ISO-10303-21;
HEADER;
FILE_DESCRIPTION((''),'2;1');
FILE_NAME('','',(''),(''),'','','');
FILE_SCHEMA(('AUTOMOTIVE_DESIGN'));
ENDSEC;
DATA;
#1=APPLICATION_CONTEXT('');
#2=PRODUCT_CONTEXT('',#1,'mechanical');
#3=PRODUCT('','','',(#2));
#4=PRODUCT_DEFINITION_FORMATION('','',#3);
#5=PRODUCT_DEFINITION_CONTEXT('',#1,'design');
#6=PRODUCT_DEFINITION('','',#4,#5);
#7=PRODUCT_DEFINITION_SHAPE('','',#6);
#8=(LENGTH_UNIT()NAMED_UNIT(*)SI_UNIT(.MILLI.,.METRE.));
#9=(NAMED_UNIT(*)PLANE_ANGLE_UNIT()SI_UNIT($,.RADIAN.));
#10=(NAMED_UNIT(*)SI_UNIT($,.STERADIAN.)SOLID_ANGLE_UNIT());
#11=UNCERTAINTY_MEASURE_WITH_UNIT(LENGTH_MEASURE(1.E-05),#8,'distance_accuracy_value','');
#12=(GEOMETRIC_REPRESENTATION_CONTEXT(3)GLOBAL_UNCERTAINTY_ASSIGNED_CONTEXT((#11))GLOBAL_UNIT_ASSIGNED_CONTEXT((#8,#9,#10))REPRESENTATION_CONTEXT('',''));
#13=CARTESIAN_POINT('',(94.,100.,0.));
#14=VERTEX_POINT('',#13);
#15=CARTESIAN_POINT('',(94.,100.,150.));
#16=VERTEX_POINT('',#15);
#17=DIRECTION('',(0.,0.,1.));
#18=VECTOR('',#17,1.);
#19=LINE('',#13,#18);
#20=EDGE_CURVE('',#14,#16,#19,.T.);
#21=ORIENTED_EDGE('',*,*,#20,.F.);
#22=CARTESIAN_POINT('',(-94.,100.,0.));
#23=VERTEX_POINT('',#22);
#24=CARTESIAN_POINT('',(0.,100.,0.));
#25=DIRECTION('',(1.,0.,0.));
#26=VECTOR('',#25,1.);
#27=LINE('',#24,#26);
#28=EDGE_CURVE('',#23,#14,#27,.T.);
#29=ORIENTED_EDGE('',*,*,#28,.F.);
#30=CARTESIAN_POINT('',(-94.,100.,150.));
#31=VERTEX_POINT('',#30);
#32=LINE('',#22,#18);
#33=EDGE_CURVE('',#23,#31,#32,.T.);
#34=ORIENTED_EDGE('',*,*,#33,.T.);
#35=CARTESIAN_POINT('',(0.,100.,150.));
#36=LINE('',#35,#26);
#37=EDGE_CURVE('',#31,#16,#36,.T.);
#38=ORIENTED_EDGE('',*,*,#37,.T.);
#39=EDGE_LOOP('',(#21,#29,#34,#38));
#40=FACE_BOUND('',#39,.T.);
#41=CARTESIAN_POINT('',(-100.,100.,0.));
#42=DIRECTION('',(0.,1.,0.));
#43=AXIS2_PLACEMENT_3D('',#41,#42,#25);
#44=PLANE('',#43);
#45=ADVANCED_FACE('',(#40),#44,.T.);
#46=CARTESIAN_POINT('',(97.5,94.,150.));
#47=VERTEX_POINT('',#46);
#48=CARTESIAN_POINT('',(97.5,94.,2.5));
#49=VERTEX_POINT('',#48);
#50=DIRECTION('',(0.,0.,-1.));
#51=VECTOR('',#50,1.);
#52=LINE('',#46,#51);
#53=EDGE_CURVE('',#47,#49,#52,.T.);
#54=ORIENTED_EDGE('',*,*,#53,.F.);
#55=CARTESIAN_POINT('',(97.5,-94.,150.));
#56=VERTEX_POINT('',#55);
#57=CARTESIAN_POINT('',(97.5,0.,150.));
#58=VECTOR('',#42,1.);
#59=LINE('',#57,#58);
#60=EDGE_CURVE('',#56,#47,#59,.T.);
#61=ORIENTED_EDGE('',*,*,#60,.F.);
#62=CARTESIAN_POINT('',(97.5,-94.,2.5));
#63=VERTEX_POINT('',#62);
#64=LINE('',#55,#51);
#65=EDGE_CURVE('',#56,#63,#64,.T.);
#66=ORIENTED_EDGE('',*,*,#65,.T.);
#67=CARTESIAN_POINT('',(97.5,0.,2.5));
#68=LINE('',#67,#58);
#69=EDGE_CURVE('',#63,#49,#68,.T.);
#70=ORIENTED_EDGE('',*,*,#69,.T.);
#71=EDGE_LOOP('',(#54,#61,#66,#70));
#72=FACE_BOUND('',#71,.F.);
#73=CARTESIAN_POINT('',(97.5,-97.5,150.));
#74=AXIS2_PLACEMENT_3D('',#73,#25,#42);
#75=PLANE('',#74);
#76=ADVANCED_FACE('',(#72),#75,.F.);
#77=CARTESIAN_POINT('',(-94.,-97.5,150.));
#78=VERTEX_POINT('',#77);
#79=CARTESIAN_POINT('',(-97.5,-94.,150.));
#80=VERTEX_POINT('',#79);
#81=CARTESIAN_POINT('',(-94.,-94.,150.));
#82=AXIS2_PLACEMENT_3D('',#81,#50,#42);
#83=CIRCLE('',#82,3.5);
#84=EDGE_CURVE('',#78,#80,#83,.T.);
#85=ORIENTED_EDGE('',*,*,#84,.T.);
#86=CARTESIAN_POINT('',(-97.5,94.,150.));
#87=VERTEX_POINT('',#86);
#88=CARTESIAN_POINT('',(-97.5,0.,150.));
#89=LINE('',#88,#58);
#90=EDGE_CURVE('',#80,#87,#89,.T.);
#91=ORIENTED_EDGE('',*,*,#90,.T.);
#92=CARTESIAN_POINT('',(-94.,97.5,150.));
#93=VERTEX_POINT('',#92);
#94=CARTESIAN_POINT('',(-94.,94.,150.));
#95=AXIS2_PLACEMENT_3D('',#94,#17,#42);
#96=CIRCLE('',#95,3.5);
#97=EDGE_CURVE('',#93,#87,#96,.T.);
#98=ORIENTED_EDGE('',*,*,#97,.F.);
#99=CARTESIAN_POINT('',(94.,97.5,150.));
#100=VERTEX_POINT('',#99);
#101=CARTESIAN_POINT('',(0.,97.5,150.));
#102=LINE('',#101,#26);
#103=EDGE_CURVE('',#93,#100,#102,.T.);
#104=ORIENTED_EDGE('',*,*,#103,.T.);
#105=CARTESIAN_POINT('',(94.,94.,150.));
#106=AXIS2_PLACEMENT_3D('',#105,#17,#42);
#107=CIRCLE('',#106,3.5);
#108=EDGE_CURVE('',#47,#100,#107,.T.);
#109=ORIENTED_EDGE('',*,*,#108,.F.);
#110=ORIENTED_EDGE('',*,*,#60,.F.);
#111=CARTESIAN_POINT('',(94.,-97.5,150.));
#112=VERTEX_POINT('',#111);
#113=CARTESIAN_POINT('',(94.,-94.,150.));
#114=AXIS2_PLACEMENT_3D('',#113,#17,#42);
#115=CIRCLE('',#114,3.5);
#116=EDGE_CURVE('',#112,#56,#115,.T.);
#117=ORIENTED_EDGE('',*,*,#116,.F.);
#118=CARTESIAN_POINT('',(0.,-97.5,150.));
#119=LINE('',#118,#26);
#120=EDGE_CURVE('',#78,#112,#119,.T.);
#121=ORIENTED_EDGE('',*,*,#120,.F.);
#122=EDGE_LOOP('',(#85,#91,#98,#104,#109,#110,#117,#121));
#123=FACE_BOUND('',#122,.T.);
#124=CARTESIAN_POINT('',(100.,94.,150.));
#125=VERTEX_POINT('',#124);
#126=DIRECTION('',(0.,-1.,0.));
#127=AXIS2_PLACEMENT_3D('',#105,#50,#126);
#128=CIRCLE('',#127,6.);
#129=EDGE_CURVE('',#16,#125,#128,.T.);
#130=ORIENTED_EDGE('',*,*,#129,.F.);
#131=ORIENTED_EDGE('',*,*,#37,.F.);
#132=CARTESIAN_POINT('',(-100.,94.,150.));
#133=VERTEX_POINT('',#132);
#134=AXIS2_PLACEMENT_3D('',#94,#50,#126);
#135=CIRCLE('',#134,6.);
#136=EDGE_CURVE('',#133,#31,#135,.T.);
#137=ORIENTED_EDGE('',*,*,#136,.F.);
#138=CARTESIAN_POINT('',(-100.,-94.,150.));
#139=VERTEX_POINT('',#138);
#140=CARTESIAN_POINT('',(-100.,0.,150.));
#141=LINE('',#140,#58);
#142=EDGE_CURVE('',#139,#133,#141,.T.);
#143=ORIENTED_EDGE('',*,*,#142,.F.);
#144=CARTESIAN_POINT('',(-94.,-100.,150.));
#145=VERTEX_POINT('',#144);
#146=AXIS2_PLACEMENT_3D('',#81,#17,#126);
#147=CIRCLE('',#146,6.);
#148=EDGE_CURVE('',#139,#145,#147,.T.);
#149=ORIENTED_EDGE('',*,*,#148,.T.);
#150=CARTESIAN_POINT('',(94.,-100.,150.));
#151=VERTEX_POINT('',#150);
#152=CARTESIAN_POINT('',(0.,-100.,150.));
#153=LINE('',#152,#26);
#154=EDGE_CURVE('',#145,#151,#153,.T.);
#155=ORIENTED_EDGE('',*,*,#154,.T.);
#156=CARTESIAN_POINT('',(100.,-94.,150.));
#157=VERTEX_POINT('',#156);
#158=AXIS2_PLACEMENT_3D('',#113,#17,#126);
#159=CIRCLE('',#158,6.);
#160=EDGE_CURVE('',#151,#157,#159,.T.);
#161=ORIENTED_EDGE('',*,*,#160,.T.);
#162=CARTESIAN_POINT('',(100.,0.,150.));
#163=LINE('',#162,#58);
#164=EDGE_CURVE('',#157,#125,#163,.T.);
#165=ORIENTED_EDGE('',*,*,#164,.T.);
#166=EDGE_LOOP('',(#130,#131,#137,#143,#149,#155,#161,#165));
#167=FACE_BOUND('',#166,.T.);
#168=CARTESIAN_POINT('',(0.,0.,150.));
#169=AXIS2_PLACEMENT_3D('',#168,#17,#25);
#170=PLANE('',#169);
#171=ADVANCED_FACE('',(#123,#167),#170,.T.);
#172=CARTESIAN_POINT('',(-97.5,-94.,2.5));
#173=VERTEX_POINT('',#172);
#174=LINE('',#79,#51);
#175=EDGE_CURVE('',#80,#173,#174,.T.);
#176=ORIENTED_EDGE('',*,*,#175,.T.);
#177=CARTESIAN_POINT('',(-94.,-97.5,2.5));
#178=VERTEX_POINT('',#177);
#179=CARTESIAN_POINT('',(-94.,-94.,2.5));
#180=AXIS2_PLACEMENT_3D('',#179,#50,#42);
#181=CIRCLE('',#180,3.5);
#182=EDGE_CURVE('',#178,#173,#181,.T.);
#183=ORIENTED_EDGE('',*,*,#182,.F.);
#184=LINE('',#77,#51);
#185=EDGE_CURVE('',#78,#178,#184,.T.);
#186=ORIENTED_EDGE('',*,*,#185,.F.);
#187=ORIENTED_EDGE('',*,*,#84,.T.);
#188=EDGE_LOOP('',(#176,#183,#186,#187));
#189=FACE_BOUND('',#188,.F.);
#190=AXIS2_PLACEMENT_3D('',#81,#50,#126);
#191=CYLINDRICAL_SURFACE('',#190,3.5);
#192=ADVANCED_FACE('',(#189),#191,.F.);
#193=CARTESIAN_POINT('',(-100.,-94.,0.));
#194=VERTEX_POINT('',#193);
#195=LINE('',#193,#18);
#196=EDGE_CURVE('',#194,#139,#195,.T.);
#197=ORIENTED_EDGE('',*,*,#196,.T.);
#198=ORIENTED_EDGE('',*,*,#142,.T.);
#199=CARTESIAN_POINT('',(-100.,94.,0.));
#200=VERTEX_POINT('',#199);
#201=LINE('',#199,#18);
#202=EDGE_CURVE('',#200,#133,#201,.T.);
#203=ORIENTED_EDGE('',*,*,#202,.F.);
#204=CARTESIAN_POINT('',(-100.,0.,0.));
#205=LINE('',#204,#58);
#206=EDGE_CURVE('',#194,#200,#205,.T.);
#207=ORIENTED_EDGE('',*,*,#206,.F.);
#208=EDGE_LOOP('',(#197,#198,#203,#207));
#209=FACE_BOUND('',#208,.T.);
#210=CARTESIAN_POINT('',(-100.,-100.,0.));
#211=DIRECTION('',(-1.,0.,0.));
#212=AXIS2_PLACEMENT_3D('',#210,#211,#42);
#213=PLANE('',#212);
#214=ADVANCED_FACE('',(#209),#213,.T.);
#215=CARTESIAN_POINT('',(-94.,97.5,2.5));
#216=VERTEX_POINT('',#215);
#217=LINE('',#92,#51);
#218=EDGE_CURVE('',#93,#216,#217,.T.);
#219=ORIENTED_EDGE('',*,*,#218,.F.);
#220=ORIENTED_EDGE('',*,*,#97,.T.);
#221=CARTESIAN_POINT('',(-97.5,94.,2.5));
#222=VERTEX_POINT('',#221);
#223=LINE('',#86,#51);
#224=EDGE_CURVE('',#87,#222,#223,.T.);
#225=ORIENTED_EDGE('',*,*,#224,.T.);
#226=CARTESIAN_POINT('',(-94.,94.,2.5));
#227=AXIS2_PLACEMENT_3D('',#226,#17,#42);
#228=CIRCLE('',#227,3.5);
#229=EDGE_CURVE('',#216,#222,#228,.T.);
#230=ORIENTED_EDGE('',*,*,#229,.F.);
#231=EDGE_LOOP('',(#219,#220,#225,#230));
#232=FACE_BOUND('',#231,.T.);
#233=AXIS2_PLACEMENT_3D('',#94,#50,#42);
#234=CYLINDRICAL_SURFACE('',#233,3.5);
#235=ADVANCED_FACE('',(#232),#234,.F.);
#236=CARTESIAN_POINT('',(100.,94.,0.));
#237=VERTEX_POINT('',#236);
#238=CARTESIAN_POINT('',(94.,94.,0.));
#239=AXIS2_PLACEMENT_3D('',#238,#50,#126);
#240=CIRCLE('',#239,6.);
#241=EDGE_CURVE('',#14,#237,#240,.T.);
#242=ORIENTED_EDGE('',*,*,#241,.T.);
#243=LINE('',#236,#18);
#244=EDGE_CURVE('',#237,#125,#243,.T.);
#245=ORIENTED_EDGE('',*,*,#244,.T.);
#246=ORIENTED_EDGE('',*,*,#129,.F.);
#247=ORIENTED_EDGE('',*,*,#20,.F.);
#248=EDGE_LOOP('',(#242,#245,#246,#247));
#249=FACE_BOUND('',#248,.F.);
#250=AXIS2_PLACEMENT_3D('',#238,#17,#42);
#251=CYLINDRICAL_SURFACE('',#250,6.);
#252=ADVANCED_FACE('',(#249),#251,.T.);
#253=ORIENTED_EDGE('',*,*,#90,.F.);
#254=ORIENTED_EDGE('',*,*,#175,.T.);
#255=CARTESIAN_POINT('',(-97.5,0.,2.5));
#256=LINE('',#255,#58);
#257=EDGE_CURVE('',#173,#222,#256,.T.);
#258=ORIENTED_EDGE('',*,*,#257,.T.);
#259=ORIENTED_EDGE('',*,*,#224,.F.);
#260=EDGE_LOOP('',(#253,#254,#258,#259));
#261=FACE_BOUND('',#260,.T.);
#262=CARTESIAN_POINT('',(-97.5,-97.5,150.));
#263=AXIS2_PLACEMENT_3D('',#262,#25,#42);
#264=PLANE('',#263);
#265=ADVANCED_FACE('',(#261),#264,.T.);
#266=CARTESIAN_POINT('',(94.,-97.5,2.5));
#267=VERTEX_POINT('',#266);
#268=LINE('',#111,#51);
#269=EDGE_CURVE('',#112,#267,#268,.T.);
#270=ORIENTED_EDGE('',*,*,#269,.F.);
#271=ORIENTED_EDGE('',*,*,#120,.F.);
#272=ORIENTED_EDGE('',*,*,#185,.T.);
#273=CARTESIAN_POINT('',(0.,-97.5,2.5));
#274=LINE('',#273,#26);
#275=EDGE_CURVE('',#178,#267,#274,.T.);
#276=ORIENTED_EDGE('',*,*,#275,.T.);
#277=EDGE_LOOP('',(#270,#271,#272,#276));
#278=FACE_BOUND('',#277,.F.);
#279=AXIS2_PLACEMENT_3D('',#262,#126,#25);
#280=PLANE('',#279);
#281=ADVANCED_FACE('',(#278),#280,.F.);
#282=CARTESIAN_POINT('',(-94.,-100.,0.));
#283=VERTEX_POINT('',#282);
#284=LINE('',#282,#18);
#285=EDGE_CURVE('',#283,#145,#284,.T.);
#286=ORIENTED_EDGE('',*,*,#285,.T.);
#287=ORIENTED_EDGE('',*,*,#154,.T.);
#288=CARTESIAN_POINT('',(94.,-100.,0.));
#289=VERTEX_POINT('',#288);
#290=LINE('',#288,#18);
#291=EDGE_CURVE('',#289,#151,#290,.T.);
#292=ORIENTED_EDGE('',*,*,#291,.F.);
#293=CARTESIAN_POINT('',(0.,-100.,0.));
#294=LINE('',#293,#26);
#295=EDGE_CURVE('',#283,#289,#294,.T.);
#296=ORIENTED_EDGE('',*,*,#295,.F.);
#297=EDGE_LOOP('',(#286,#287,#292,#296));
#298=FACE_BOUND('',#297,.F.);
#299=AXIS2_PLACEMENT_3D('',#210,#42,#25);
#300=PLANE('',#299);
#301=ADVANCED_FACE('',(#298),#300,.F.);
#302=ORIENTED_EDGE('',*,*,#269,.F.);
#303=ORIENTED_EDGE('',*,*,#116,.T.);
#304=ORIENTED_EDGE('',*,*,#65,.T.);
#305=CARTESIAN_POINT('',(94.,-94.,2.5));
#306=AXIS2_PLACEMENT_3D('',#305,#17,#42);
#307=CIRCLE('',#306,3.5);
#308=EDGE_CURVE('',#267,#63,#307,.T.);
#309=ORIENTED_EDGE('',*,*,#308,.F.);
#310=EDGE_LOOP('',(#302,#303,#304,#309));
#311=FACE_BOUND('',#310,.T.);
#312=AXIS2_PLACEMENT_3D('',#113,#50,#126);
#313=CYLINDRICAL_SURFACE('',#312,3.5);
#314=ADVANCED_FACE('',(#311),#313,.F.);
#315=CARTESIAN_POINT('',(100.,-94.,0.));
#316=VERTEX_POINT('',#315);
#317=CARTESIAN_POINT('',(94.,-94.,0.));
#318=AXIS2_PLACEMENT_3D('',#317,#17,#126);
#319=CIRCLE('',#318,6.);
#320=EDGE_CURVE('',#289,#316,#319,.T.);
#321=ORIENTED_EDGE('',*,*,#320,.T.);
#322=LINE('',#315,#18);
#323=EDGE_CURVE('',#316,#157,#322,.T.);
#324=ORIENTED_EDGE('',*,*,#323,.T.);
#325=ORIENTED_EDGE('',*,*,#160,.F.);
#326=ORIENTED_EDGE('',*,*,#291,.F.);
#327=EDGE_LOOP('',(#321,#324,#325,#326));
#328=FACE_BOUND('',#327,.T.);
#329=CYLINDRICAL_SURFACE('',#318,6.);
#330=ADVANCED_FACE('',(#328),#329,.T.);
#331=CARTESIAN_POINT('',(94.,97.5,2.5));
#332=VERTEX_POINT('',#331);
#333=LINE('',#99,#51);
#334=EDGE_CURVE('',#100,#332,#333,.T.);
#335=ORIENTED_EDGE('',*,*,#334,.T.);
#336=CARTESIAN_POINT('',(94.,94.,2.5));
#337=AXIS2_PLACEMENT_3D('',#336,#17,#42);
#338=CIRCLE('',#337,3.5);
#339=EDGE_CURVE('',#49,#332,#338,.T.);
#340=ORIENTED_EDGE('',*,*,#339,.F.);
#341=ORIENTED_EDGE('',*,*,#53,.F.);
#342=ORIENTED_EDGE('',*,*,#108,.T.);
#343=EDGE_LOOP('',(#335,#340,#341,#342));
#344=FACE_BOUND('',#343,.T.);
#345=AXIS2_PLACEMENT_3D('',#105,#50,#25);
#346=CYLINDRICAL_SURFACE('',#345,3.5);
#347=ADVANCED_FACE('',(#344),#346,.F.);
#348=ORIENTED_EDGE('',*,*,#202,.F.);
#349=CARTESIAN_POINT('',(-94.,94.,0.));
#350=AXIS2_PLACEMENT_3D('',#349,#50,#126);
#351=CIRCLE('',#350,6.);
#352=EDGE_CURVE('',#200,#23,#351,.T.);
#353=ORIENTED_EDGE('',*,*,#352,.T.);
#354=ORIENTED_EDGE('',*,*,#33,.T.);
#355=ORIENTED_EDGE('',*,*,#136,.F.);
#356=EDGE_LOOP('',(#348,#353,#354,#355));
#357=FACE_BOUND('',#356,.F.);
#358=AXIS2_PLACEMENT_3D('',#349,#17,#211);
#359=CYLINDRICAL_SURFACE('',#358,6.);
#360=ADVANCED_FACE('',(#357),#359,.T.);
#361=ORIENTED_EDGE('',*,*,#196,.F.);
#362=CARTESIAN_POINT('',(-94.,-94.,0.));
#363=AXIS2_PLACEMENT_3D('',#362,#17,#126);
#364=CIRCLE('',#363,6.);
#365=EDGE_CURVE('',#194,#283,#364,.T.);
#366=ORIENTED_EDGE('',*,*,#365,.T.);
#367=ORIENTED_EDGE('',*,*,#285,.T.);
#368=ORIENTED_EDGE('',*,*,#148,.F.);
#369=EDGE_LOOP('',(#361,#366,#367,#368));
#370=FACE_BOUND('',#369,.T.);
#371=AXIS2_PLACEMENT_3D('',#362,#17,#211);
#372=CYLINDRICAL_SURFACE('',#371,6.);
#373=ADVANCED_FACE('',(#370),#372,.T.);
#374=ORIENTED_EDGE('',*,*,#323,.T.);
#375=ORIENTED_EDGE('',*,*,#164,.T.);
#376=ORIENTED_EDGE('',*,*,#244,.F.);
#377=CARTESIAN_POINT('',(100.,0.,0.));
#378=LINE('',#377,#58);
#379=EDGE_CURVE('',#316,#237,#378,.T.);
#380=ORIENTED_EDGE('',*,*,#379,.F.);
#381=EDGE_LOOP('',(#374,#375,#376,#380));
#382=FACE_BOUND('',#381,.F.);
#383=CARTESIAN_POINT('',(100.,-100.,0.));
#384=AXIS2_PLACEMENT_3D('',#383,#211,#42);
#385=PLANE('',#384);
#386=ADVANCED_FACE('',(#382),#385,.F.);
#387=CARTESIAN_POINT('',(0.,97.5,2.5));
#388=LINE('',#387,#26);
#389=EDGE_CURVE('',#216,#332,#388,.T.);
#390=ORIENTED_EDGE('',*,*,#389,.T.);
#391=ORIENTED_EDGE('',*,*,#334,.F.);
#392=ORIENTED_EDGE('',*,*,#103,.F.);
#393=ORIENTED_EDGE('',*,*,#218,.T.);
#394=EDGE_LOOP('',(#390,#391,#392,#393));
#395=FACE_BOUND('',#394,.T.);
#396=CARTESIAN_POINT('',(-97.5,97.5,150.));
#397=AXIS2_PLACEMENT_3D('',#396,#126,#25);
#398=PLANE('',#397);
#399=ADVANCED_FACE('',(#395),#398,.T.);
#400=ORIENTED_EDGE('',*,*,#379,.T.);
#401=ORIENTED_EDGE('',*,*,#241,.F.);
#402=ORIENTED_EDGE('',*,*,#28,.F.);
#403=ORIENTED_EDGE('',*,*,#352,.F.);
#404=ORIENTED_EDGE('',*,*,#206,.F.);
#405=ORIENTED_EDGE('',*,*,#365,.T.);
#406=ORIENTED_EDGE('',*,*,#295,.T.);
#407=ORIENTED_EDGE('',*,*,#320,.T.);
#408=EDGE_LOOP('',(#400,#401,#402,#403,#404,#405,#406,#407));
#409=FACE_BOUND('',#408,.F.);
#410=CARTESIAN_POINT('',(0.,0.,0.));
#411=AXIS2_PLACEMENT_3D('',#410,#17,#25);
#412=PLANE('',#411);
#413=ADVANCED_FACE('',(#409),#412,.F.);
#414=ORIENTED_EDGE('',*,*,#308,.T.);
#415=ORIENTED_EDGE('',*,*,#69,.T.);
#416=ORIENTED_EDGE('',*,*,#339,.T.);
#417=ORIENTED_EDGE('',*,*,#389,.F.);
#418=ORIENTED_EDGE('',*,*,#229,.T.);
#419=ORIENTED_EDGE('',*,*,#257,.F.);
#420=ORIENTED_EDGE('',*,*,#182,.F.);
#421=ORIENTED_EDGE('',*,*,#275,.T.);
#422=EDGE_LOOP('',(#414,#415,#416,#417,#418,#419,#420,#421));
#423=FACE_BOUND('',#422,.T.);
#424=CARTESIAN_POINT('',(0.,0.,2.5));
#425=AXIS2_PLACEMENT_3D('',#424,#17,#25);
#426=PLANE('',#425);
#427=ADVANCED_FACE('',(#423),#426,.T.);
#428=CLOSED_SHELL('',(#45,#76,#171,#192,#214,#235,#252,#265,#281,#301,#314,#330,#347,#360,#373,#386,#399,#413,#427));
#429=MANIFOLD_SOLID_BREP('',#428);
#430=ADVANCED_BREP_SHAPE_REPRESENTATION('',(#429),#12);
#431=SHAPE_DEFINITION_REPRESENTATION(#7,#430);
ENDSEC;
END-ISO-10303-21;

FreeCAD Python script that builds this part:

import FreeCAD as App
import Part
import Sketcher
from FreeCAD import Vector


def edges_at(feature, points):
    """Names of the edges that pass closest to the given points."""
    edges = feature.Shape.Edges
    near = lambda p: min(range(len(edges)), key=lambda i: edges[i].distToShape(Part.Vertex(*p))[0])
    return sorted({f"Edge{near(p) + 1}" for p in points})


def add_polygon(sketch, points):
    """Adds a closed chain of lines whose ends are joined by coincident constraints."""
    first, n = sketch.GeometryCount, len(points)
    for a, b in zip(points, points[1:] + points[:1]):
        sketch.addGeometry(Part.LineSegment(App.Vector(*a, 0), App.Vector(*b, 0)), False)
    for i in range(n):
        sketch.addConstraint(Sketcher.Constraint("Coincident", first + i, 2, first + (i + 1) % n, 1))

doc = App.newDocument("Part")
params = doc.addObject("Spreadsheet::Sheet", "Params")
for row, (alias, value) in enumerate([
    ("sketch1_width", "200 mm"),
    ("pad1_length", "150 mm"),
    ("sketch2_width", "195 mm"),
    ("pocket1_length", "147.5 mm"),
    ("fillet_radius", "6 mm"),
    ("fillet2_radius", "3.5 mm"),
], start=1):
    params.set(f"A{row}", alias)
    params.set(f"B{row}", "=" + value)
    params.setAlias(f"B{row}", alias)

body = doc.addObject("PartDesign::Body", "Body")

sketch1 = body.newObject("Sketcher::SketchObject", "Sketch")
sketch1.AttachmentSupport = (doc.getObject("XY_Plane"), [""])
sketch1.MapMode = "FlatFace"
add_polygon(sketch1, [(-100, 100), (-100, -100), (100, -100), (100, 100)])
sketch1.addConstraint([
    Sketcher.Constraint("Vertical", 0),
    Sketcher.Constraint("Horizontal", 1),
    Sketcher.Constraint("Vertical", 2),
    Sketcher.Constraint("Horizontal", 3),
    Sketcher.Constraint("Symmetric", 0, 2, 2, 2, -1, 1),
    Sketcher.Constraint("Equal", 3, 0),
    Sketcher.Constraint("DistanceX", 1, 1, 1, 2, 200.0),
])
sketch1.setExpression("Constraints[10]", "Params.sketch1_width")
pad1 = body.newObject("PartDesign::Pad", "Pad")
pad1.Profile = sketch1
pad1.setExpression("Length", "Params.pad1_length")

sketch2 = body.newObject("Sketcher::SketchObject", "Sketch001")
sketch2.AttachmentSupport = (doc.getObject("XY_Plane"), [""])
sketch2.MapMode = "FlatFace"
sketch2.AttachmentOffset = App.Placement(Vector(0, 0, 150), App.Rotation())
add_polygon(sketch2, [(-98, 98), (-98, -98), (98, -98), (98, 98)])
sketch2.addConstraint([
    Sketcher.Constraint("Vertical", 0),
    Sketcher.Constraint("Horizontal", 1),
    Sketcher.Constraint("Vertical", 2),
    Sketcher.Constraint("Horizontal", 3),
    Sketcher.Constraint("Symmetric", 0, 2, 2, 2, -1, 1),
    Sketcher.Constraint("Equal", 3, 0),
    Sketcher.Constraint("DistanceX", 1, 1, 1, 2, 195.0),
])
sketch2.setExpression("Constraints[10]", "Params.sketch2_width")
pocket1 = body.newObject("PartDesign::Pocket", "Pocket")
pocket1.Profile = sketch2
pocket1.setExpression("Length", "Params.pocket1_length")
doc.recompute()

fillet = body.newObject("PartDesign::Fillet", "Fillet")
fillet.Base = (pocket1, edges_at(pocket1, [
    (-100, -100, 75),
    (100, -100, 75),
    (100, 100, 75),
    (-100, 100, 75),
]))
fillet.setExpression("Radius", "Params.fillet_radius")
doc.recompute()

fillet2 = body.newObject("PartDesign::Fillet", "Fillet001")
fillet2.Base = (fillet, edges_at(fillet, [
    (97.5, 97.5, 76.25),
    (-97.5, 97.5, 76.25),
    (97.5, -97.5, 76.25),
    (-97.5, -97.5, 76.25),
]))
fillet2.setExpression("Radius", "Params.fillet2_radius")

doc.recompute()
